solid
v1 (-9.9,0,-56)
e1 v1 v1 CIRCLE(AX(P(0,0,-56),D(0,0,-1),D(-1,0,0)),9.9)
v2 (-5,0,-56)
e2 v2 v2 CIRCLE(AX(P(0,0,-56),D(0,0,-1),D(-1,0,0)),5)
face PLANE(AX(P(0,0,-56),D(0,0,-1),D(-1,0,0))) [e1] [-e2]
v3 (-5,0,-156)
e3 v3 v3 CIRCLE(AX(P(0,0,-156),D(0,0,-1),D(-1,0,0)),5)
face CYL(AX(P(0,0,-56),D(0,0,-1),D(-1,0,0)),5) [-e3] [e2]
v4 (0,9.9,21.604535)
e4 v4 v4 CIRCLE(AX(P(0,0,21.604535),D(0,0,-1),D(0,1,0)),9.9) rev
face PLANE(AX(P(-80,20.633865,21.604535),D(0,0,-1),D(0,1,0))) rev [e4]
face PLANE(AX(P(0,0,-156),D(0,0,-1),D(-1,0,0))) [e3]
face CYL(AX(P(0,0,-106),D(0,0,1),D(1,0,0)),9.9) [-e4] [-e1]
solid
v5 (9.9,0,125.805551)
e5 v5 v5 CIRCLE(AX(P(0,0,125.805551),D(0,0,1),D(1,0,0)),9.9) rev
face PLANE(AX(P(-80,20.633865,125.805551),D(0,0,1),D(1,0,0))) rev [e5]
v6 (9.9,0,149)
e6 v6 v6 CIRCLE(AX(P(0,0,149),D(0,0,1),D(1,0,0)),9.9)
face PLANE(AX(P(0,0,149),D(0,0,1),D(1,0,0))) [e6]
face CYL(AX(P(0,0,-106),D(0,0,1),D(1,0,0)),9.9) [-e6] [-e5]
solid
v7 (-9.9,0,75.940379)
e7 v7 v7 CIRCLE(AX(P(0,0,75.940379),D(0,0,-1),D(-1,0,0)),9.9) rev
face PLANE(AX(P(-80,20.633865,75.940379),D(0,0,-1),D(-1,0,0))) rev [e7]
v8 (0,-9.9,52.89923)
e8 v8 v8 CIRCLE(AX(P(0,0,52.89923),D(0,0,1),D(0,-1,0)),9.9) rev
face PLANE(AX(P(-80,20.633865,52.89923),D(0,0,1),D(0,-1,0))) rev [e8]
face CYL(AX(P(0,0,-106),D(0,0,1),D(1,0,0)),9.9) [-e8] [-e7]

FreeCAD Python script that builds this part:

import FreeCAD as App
import Part
import Sketcher


def add_polygon(sketch, points):
    """Adds a closed chain of lines whose ends are joined by coincident constraints."""
    first, n = sketch.GeometryCount, len(points)
    for a, b in zip(points, points[1:] + points[:1]):
        sketch.addGeometry(Part.LineSegment(App.Vector(*a, 0), App.Vector(*b, 0)), False)
    for i in range(n):
        sketch.addConstraint(Sketcher.Constraint("Coincident", first + i, 2, first + (i + 1) % n, 1))

doc = App.newDocument("Part")
body = doc.addObject("PartDesign::Body", "Body")
body.AllowCompound = True

sketch1 = body.newObject("Sketcher::SketchObject", "Sketch")
sketch1.AttachmentSupport = (doc.getObject("XY_Plane"), [""])
sketch1.MapMode = "FlatFace"
sketch1.addGeometry(Part.Circle(App.Vector(0, 0, 0), App.Vector(0, 0, 1), 10), False)
sketch1.addConstraint([
    Sketcher.Constraint("Coincident", 0, 3, -1, 1),
    Sketcher.Constraint("Diameter", 0, 19.8),
])
pad1 = body.newObject("PartDesign::Pad", "Pad")
pad1.Profile = sketch1
pad1.Type = "TwoLengths"
pad1.Length = 149
pad1.Length2 = 106

sketch2 = body.newObject("Sketcher::SketchObject", "Sketch001")
sketch2.AttachmentSupport = (doc.getObject("XY_Plane"), [""])
sketch2.MapMode = "FlatFace"
sketch2.AttachmentOffset = App.Placement(App.Vector(0, 0, -106), App.Rotation())
sketch2.addGeometry([
    Part.Circle(App.Vector(0, 0, 0), App.Vector(0, 0, 1), 10),
    Part.Circle(App.Vector(0, 0, 0), App.Vector(0, 0, 1), 5),
], False)
sketch2.addConstraint([
    Sketcher.Constraint("Coincident", 0, 3, -1, 1),
    Sketcher.Constraint("Coincident", 1, 3, -1, 1),
    Sketcher.Constraint("Diameter", 1, 10.0),
    Sketcher.Constraint("Diameter", 0, 19.8),
])
pocket1 = body.newObject("PartDesign::Pocket", "Pocket")
pocket1.Profile = sketch2
pocket1.Length = 50
pocket1.Reversed = True

sketch3 = body.newObject("Sketcher::SketchObject", "Sketch002")
sketch3.AttachmentSupport = (doc.getObject("XY_Plane"), [""])
sketch3.MapMode = "FlatFace"
sketch3.AttachmentOffset = App.Placement(App.Vector(0, 0, -106), App.Rotation())
sketch3.addGeometry(Part.Circle(App.Vector(0, 0, 0), App.Vector(0, 0, 1), 5), False)
sketch3.addConstraint([
    Sketcher.Constraint("Coincident", 0, 3, -1, 1),
    Sketcher.Constraint("Diameter", 0, 10.0),
])
pad2 = body.newObject("PartDesign::Pad", "Pad001")
pad2.Profile = sketch3
pad2.Length = 50
pad2.Reversed = True

sketch4 = body.newObject("Sketcher::SketchObject", "Sketch003")
sketch4.AttachmentSupport = (doc.getObject("YZ_Plane"), [""])
sketch4.MapMode = "FlatFace"
sketch4.AttachmentOffset = App.Placement(App.Vector(0, 0, 30), App.Rotation())
add_polygon(sketch4, [(21, 126), (-24, 126), (-24, 76), (21, 76)])
add_polygon(sketch4, [(21, 53), (-26, 53), (-26, 22), (21, 22)])
sketch4.addConstraint([
    Sketcher.Constraint("Horizontal", 0),
    Sketcher.Constraint("Vertical", 1),
    Sketcher.Constraint("Horizontal", 2),
    Sketcher.Constraint("Vertical", 3),
    Sketcher.Constraint("Horizontal", 4),
    Sketcher.Constraint("Vertical", 5),
    Sketcher.Constraint("Horizontal", 6),
    Sketcher.Constraint("Vertical", 7),
    Sketcher.Constraint("Vertical", 3, 2, 6, 2),
    Sketcher.Constraint("DistanceX", 4, 2, 4, 1, 47.113991),
    Sketcher.Constraint("DistanceX", 0, 2, 0, 1, 45.050604),
    Sketcher.Constraint("DistanceY", 1, 2, 1, 1, 49.865173),
    Sketcher.Constraint("DistanceY", 5, 2, 5, 1, 31.294695),
    Sketcher.Constraint("DistanceX", 0, 2, -1, 1, 24.41674),
    Sketcher.Constraint("DistanceY", -1, 1, 0, 2, 125.805551),
    Sketcher.Constraint("DistanceY", -1, 1, 4, 2, 52.89923),
])
pocket2 = body.newObject("PartDesign::Pocket", "Pocket001")
pocket2.Profile = sketch4
pocket2.Length = 110

doc.recompute()
